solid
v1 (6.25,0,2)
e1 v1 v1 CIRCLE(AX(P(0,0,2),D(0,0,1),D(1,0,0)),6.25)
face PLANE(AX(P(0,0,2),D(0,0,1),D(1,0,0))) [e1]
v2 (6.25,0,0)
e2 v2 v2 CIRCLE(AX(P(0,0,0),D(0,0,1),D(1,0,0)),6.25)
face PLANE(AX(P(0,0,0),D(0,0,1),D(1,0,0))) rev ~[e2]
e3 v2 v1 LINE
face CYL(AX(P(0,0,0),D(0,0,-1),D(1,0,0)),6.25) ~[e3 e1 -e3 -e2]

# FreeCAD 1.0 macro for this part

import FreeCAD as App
import Part
import Sketcher
Q = App.Units.Quantity

doc = App.newDocument("Part")
params = doc.addObject("Spreadsheet::Sheet", "Params")
for row, (alias, value) in enumerate([
    ("sketch1_diameter", "12.5 mm"),
    ("pad1_length", "2 mm"),
], start=1):
    params.set(f"A{row}", alias)
    params.set(f"B{row}", "=" + value)
    params.setAlias(f"B{row}", alias)

body = doc.addObject("PartDesign::Body", "Body")

# Sketch on XY plane
sketch1 = doc.addObject("Sketcher::SketchObject", "Sketch")
body.addObject(sketch1)
sketch1.AttachmentSupport = (doc.XY_Plane, [""])
sketch1.MapMode = "FlatFace"
sketch1.addGeometry(Part.Circle(App.Vector(0, 0, 0), App.Vector(0, 0, 1), 6), False)
sketch1.addConstraint([
    Sketcher.Constraint("Coincident", 0, 3, -1, 1),
    Sketcher.Constraint("Diameter", 0, Q("12.5 mm")),
])
sketch1.setExpression("Constraints[1]", "Params.sketch1_diameter")
pad1 = doc.addObject("PartDesign::Pad", "Pad")
body.addObject(pad1)
pad1.Profile = sketch1
pad1.setExpression("Length", "Params.pad1_length")

doc.recompute()
